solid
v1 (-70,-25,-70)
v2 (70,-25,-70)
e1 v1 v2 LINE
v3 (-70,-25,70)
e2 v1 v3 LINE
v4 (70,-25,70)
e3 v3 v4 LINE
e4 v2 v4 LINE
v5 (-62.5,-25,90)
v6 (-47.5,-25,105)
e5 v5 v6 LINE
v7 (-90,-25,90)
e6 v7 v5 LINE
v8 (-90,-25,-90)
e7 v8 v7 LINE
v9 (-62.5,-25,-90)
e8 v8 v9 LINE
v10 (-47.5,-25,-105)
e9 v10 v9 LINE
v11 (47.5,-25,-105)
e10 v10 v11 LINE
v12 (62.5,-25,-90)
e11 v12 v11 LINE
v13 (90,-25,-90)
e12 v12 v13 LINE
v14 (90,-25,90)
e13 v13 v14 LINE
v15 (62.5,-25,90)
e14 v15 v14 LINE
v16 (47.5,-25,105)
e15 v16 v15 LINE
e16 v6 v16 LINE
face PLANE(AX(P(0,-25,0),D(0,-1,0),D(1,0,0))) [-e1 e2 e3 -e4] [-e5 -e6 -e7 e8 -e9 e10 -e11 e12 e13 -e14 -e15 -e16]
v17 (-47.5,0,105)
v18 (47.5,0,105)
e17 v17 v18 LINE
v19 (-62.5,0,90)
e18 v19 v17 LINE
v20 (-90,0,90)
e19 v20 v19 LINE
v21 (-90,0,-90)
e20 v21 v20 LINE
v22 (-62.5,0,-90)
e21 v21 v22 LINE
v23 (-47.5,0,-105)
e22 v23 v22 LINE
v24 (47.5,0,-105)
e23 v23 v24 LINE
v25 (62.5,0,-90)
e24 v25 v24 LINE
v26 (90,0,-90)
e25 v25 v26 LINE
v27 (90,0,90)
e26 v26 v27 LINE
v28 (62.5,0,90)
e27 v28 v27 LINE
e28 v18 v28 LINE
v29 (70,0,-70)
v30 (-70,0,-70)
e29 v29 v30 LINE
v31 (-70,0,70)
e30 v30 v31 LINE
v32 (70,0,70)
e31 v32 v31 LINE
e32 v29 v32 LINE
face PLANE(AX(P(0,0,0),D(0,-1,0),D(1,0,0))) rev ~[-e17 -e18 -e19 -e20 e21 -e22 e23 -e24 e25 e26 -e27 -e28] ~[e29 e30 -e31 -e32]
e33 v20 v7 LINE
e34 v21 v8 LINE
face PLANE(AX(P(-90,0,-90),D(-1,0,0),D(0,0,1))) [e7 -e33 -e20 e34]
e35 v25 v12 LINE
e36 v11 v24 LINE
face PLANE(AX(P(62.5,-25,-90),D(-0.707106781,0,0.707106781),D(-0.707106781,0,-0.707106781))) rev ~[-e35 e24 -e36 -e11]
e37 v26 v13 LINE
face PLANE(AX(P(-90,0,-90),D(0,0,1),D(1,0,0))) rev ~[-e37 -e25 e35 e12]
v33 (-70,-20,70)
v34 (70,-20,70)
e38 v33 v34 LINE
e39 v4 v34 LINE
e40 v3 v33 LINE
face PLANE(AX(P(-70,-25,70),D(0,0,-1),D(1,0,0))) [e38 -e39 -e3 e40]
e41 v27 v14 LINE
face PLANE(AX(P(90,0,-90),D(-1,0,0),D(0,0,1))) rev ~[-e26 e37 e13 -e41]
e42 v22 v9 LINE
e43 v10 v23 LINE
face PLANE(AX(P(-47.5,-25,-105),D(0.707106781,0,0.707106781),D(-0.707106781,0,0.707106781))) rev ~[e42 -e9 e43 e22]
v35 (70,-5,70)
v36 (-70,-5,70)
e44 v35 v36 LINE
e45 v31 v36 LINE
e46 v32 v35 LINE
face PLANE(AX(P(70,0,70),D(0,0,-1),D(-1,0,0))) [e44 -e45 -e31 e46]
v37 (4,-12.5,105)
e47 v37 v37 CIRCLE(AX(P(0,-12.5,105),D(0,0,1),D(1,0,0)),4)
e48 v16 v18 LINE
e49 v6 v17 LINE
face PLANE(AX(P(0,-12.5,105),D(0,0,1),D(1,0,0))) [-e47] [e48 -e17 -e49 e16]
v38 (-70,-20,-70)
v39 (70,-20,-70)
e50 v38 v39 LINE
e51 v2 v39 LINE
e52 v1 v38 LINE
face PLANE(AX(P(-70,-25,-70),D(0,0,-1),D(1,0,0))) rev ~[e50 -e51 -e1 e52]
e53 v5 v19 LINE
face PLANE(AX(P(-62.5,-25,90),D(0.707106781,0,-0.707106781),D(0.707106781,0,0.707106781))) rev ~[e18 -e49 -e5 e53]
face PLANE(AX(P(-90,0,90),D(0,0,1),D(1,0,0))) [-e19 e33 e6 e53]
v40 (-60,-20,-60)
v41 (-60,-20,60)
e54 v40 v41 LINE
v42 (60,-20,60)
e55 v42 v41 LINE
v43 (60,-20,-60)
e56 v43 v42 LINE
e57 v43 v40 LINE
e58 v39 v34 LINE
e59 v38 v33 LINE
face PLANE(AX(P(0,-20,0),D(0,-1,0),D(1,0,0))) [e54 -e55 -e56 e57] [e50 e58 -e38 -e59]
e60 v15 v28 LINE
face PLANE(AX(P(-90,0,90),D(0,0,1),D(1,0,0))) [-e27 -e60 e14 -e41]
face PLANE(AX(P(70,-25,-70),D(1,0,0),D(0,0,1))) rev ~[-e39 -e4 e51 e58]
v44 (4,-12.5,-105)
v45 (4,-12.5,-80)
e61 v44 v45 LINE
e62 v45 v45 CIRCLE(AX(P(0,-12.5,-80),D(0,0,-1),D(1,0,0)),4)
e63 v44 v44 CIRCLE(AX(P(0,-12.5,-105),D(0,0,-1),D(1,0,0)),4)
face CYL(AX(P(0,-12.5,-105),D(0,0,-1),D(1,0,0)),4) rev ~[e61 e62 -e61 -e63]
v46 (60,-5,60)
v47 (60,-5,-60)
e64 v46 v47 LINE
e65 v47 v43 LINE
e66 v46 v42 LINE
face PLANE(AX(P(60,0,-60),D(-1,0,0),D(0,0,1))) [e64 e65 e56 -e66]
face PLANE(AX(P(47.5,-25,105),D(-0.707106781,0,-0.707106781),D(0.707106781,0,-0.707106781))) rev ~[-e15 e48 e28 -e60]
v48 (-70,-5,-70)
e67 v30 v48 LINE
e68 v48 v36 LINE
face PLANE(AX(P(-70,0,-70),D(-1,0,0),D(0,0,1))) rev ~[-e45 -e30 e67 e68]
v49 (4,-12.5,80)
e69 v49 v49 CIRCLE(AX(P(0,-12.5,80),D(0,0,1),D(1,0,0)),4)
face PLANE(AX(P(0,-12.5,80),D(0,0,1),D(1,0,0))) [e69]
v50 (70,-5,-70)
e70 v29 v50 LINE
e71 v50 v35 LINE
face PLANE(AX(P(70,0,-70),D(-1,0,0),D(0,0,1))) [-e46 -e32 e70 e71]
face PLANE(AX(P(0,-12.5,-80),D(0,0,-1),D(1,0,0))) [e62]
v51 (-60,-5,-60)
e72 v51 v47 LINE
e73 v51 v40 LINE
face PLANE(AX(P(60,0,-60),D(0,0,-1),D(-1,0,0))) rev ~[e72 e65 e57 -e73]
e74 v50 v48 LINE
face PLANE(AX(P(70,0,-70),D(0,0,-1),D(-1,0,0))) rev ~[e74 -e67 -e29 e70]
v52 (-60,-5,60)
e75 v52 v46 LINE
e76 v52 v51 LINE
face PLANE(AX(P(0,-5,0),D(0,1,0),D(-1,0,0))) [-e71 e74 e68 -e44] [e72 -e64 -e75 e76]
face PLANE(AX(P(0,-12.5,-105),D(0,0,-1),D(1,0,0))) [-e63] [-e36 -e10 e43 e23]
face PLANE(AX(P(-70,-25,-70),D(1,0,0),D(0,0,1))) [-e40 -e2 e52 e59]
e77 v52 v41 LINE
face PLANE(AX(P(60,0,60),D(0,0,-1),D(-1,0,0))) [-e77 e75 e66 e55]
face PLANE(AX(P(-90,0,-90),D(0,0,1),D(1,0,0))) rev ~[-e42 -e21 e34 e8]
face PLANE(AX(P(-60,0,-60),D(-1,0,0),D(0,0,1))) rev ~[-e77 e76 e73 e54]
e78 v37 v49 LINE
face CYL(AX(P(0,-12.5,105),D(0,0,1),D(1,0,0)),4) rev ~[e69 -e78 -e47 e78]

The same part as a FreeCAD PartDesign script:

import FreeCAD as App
import Part
import Sketcher

V = App.Vector


def add_polygon(sketch, points):
    """Adds a closed chain of lines whose ends are joined by coincident constraints."""
    first, n = sketch.GeometryCount, len(points)
    for a, b in zip(points, points[1:] + points[:1]):
        sketch.addGeometry(Part.LineSegment(App.Vector(*a, 0), App.Vector(*b, 0)), False)
    for i in range(n):
        sketch.addConstraint(Sketcher.Constraint("Coincident", first + i, 2, first + (i + 1) % n, 1))

doc = App.newDocument("Part")
body = doc.addObject("PartDesign::Body", "Body")

# Sketch on XZ plane
sketch1 = body.newObject("Sketcher::SketchObject", "Sketch")
sketch1.AttachmentSupport = (doc.getObject("XZ_Plane"), [""])
sketch1.MapMode = "FlatFace"
add_polygon(sketch1, [(-90, 90), (-90, -90), (90, -90), (90, 90)])  # lines 0-3
sketch1.addConstraint([
    Sketcher.Constraint("Vertical", 0),
    Sketcher.Constraint("Horizontal", 1),
    Sketcher.Constraint("Vertical", 2),
    Sketcher.Constraint("Horizontal", 3),
    Sketcher.Constraint("Symmetric", 0, 2, 2, 2, -1, 1),
    Sketcher.Constraint("Equal", 3, 0),
    Sketcher.Constraint("DistanceX", 1, 1, 1, 2, 180.0),
])
pad1 = body.newObject("PartDesign::Pad", "Pad")
pad1.Profile = sketch1
pad1.Length = 25

# Sketch on XY plane
sketch2 = body.newObject("Sketcher::SketchObject", "Sketch001")
sketch2.AttachmentSupport = (doc.getObject("XY_Plane"), [""])
sketch2.MapMode = "FlatFace"
sketch2.AttachmentOffset = App.Placement(V(0, 0, -90), App.Rotation())
add_polygon(sketch2, [(-62, -25), (-62, 0), (62, 0), (62, -25)])  # lines 0-3
sketch2.addConstraint([
    Sketcher.Constraint("Vertical", 0),
    Sketcher.Constraint("Horizontal", 1),
    Sketcher.Constraint("Vertical", 2),
    Sketcher.Constraint("Horizontal", 3),
    Sketcher.Constraint("Symmetric", 0, 2, 1, 2, -1, 1),
    Sketcher.Constraint("DistanceX", 1, 1, 1, 2, 125.0),
    Sketcher.Constraint("DistanceY", 0, 1, 0, 2, 25.0),
])
pad2 = body.newObject("PartDesign::Pad", "Pad001")
pad2.Profile = sketch2
pad2.Length = 15
pad2.Reversed = True

# Sketch on XY plane
sketch3 = body.newObject("Sketcher::SketchObject", "Sketch002")
sketch3.AttachmentSupport = (doc.getObject("XY_Plane"), [""])
sketch3.MapMode = "FlatFace"
sketch3.AttachmentOffset = App.Placement(V(0, 0, 90), App.Rotation())
add_polygon(sketch3, [(-62, 0), (-62, -25), (62, -25), (62, 0)])  # lines 0-3
sketch3.addConstraint([
    Sketcher.Constraint("Vertical", 0),
    Sketcher.Constraint("Horizontal", 1),
    Sketcher.Constraint("Vertical", 2),
    Sketcher.Constraint("Horizontal", 3),
    Sketcher.Constraint("Symmetric", 2, 2, 3, 2, -1, 1),
    Sketcher.Constraint("DistanceX", 1, 1, 1, 2, 125.0),
    Sketcher.Constraint("DistanceY", 0, 2, 0, 1, 25.0),
])
pad3 = body.newObject("PartDesign::Pad", "Pad002")
pad3.Profile = sketch3
pad3.Length = 15

# Sketch on XZ plane
sketch4 = body.newObject("Sketcher::SketchObject", "Sketch003")
sketch4.AttachmentSupport = (doc.getObject("XZ_Plane"), [""])
sketch4.MapMode = "FlatFace"
sketch4.AttachmentOffset = App.Placement(V(0, 0, 25), App.Rotation())
add_polygon(sketch4, [(-48, -105), (-62, -90), (-62, -105)])  # lines 0-2
add_polygon(sketch4, [(62, -105), (62, -90), (48, -105)])  # lines 3-5
add_polygon(sketch4, [(-62, 105), (-62, 90), (-48, 105)])  # lines 6-8
add_polygon(sketch4, [(48, 105), (62, 90), (62, 105)])  # lines 9-11
sketch4.addConstraint([
    Sketcher.Constraint("Vertical", 1),
    Sketcher.Constraint("Horizontal", 2),
    Sketcher.Constraint("Vertical", 3),
    Sketcher.Constraint("Horizontal", 5),
    Sketcher.Constraint("Vertical", 6),
    Sketcher.Constraint("Horizontal", 8),
    Sketcher.Constraint("Vertical", 10),
    Sketcher.Constraint("Horizontal", 11),
    Sketcher.Constraint("Symmetric", 3, 2, 6, 2, -1, 1),
    Sketcher.Constraint("Symmetric", 4, 2, 7, 2, -1, 1),
    Sketcher.Constraint("Symmetric", 0, 2, 9, 2, -1, 1),
    Sketcher.Constraint("Symmetric", 2, 2, 11, 2, -1, 1),
    Sketcher.Constraint("Symmetric", 0, 2, 3, 2, -2),
    Sketcher.Constraint("Symmetric", 2, 2, 4, 2, -2),
    Sketcher.Constraint("Perpendicular", 0, 4),
    Sketcher.Constraint("DistanceX", 2, 1, 2, 2, 15.0),
    Sketcher.Constraint("DistanceY", 0, 2, -1, 1, 90.0),
    Sketcher.Constraint("DistanceX", 2, 2, 3, 2, 110.0),
])
pocket1 = body.newObject("PartDesign::Pocket", "Pocket")
pocket1.Profile = sketch4
pocket1.Length = 25

# Sketch on XZ plane
sketch5 = body.newObject("Sketcher::SketchObject", "Sketch004")
sketch5.AttachmentSupport = (doc.getObject("XZ_Plane"), [""])
sketch5.MapMode = "FlatFace"
add_polygon(sketch5, [(60, 60), (60, -60), (-60, -60), (-60, 60)])  # lines 0-3
sketch5.addConstraint([
    Sketcher.Constraint("Vertical", 0),
    Sketcher.Constraint("Horizontal", 1),
    Sketcher.Constraint("Vertical", 2),
    Sketcher.Constraint("Horizontal", 3),
    Sketcher.Constraint("Symmetric", 0, 2, 2, 2, -1, 1),
    Sketcher.Constraint("Equal", 3, 0),
    Sketcher.Constraint("DistanceX", 1, 2, 1, 1, 120.0),
])
pocket2 = body.newObject("PartDesign::Pocket", "Pocket001")
pocket2.Profile = sketch5
pocket2.Length = 25
pocket2.Reversed = True

# Sketch on XZ plane
sketch6 = body.newObject("Sketcher::SketchObject", "Sketch005")
sketch6.AttachmentSupport = (doc.getObject("XZ_Plane"), [""])
sketch6.MapMode = "FlatFace"
add_polygon(sketch6, [(70, 70), (70, -70), (-70, -70), (-70, 70)])  # lines 0-3
sketch6.addConstraint([
    Sketcher.Constraint("Vertical", 0),
    Sketcher.Constraint("Horizontal", 1),
    Sketcher.Constraint("Vertical", 2),
    Sketcher.Constraint("Horizontal", 3),
    Sketcher.Constraint("Symmetric", 0, 2, 2, 2, -1, 1),
    Sketcher.Constraint("Equal", 3, 0),
    Sketcher.Constraint("DistanceX", 1, 2, 1, 1, 140.0),
])
pocket3 = body.newObject("PartDesign::Pocket", "Pocket002")
pocket3.Profile = sketch6
pocket3.Length = 5
pocket3.Reversed = True

# Sketch on XZ plane
sketch7 = body.newObject("Sketcher::SketchObject", "Sketch006")
sketch7.AttachmentSupport = (doc.getObject("XZ_Plane"), [""])
sketch7.MapMode = "FlatFace"
sketch7.AttachmentOffset = App.Placement(V(0, 0, 25), App.Rotation())
add_polygon(sketch7, [(-70, 70), (-70, -70), (70, -70), (70, 70)])  # lines 0-3
sketch7.addConstraint([
    Sketcher.Constraint("Vertical", 0),
    Sketcher.Constraint("Horizontal", 1),
    Sketcher.Constraint("Vertical", 2),
    Sketcher.Constraint("Horizontal", 3),
    Sketcher.Constraint("Symmetric", 0, 2, 2, 2, -1, 1),
    Sketcher.Constraint("Equal", 3, 0),
    Sketcher.Constraint("DistanceX", 1, 1, 1, 2, 140.0),
])
pocket4 = body.newObject("PartDesign::Pocket", "Pocket003")
pocket4.Profile = sketch7
pocket4.Length = 5

# Sketch on XY plane
sketch8 = body.newObject("Sketcher::SketchObject", "Sketch007")
sketch8.AttachmentSupport = (doc.getObject("XY_Plane"), [""])
sketch8.MapMode = "FlatFace"
sketch8.AttachmentOffset = App.Placement(V(0, 0, -105), App.Rotation())
sketch8.addGeometry(Part.Circle(V(0, -12.5, 0), V(0, 0, 1), 4), False)
sketch8.addConstraint([
    Sketcher.Constraint("PointOnObject", 0, 3, -2),
    Sketcher.Constraint("Diameter", 0, 8.0),
    Sketcher.Constraint("DistanceY", 0, 3, -1, 1, 12.5),
])
pocket5 = body.newObject("PartDesign::Pocket", "Pocket004")
pocket5.Profile = sketch8
pocket5.Length = 25
pocket5.Reversed = True

# Sketch on XY plane
sketch9 = body.newObject("Sketcher::SketchObject", "Sketch008")
sketch9.AttachmentSupport = (doc.getObject("XY_Plane"), [""])
sketch9.MapMode = "FlatFace"
sketch9.AttachmentOffset = App.Placement(V(0, 0, 105), App.Rotation())
sketch9.addGeometry(Part.Circle(V(0, -12.5, 0), V(0, 0, 1), 4), False)
sketch9.addConstraint([
    Sketcher.Constraint("PointOnObject", 0, 3, -2),
    Sketcher.Constraint("Diameter", 0, 8.0),
    Sketcher.Constraint("DistanceY", 0, 3, -1, 1, 12.5),
])
pocket6 = body.newObject("PartDesign::Pocket", "Pocket005")
pocket6.Profile = sketch9
pocket6.Length = 25

doc.recompute()
